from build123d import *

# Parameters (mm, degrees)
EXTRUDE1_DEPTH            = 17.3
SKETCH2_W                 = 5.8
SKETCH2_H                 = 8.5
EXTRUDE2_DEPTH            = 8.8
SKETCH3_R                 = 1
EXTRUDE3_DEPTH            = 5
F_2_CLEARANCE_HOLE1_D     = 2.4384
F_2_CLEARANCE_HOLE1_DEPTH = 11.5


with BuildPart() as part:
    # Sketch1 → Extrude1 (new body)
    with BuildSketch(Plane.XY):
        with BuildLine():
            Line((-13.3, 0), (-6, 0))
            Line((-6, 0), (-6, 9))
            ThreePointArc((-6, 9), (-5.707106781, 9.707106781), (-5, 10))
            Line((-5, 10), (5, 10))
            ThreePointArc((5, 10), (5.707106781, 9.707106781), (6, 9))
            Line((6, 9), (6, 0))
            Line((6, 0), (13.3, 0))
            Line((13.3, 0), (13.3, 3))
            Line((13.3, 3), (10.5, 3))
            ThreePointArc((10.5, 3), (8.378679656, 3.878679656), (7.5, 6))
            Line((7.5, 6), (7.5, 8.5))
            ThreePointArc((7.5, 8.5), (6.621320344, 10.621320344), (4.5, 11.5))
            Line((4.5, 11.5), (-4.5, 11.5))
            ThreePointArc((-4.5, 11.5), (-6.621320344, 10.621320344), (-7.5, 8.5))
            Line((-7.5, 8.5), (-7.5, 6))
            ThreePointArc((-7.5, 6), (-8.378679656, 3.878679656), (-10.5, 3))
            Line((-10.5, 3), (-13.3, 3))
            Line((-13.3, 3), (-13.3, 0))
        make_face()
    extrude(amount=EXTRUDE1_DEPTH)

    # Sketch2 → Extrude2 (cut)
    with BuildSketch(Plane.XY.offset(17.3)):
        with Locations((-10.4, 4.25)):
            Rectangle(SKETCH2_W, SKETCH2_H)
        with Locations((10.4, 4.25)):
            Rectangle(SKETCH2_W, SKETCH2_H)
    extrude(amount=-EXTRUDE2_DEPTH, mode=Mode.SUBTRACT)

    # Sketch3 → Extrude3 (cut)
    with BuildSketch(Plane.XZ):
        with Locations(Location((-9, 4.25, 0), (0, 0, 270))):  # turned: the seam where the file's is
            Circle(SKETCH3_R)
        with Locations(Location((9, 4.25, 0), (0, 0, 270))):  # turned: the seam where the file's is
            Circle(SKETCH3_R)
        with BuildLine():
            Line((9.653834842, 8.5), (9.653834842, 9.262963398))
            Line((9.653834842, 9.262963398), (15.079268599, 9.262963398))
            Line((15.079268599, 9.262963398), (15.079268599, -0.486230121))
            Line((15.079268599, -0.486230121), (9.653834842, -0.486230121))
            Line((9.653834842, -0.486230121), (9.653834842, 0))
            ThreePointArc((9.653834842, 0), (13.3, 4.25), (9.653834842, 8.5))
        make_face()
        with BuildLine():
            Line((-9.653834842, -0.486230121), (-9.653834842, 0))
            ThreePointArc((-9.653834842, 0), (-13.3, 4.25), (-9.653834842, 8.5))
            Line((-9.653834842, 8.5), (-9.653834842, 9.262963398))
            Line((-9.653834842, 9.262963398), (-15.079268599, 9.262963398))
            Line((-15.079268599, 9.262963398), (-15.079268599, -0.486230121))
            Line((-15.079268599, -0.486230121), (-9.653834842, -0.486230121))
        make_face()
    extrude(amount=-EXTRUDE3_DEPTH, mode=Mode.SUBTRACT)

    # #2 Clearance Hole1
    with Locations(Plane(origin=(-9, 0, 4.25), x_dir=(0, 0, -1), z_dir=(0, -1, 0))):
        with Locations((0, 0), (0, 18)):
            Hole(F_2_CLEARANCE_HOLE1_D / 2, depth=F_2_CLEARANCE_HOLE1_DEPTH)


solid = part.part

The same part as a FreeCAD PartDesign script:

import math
import FreeCAD as App
import Part
import Sketcher
from FreeCAD import Vector
Q = App.Units.Quantity


def add_polygon(sketch, points):
    """Adds a closed chain of lines whose ends are joined by coincident constraints."""
    first, n = sketch.GeometryCount, len(points)
    for a, b in zip(points, points[1:] + points[:1]):
        sketch.addGeometry(Part.LineSegment(App.Vector(*a, 0), App.Vector(*b, 0)), False)
    for i in range(n):
        sketch.addConstraint(Sketcher.Constraint("Coincident", first + i, 2, first + (i + 1) % n, 1))

doc = App.newDocument("Part")
body = doc.addObject("PartDesign::Body", "Body")

# Sketch on XY plane
sketch1 = body.newObject("Sketcher::SketchObject", "Sketch")
sketch1.AttachmentSupport = (doc.getObject("XY_Plane"), [""])
sketch1.MapMode = "FlatFace"
sketch1.addGeometry([
    Part.LineSegment(Vector(-13.3, 0, 0), Vector(-6, 0, 0)),  # 0
    Part.LineSegment(Vector(-6, 0, 0), Vector(-6, 9, 0)),  # 1
    Part.ArcOfCircle(Part.Circle(Vector(-5, 9, 0), Vector(0, 0, 1), 1), math.radians(90), math.radians(180)),  # 2
    Part.LineSegment(Vector(-5, 10, 0), Vector(5, 10, 0)),  # 3
    Part.ArcOfCircle(Part.Circle(Vector(5, 9, 0), Vector(0, 0, 1), 1), math.radians(0), math.radians(90)),  # 4
    Part.LineSegment(Vector(6, 9, 0), Vector(6, 0, 0)),  # 5
    Part.LineSegment(Vector(6, 0, 0), Vector(13.3, 0, 0)),  # 6
    Part.LineSegment(Vector(13.3, 0, 0), Vector(13.3, 3, 0)),  # 7
    Part.LineSegment(Vector(13.3, 3, 0), Vector(10.5, 3, 0)),  # 8
    Part.ArcOfCircle(Part.Circle(Vector(10.5, 6, 0), Vector(0, 0, 1), 3), math.radians(180), math.radians(270)),  # 9
    Part.LineSegment(Vector(7.5, 6, 0), Vector(7.5, 8.5, 0)),  # 10
    Part.ArcOfCircle(Part.Circle(Vector(4.5, 8.5, 0), Vector(0, 0, 1), 3), math.radians(0), math.radians(90)),  # 11
    Part.LineSegment(Vector(4.5, 11.5, 0), Vector(-4.5, 11.5, 0)),  # 12
    Part.ArcOfCircle(Part.Circle(Vector(-4.5, 8.5, 0), Vector(0, 0, 1), 3), math.radians(90), math.radians(180)),  # 13
    Part.LineSegment(Vector(-7.5, 8.5, 0), Vector(-7.5, 6, 0)),  # 14
    Part.ArcOfCircle(Part.Circle(Vector(-10.5, 6, 0), Vector(0, 0, 1), 3), math.radians(-90), math.radians(0)),  # 15
    Part.LineSegment(Vector(-10.5, 3, 0), Vector(-13.3, 3, 0)),  # 16
    Part.LineSegment(Vector(-13.3, 3, 0), Vector(-13.3, 0, 0)),  # 17
], False)
sketch1.addConstraint([
    Sketcher.Constraint("Coincident", 0, 2, 1, 1),
    Sketcher.Constraint("Tangent", 1, 2, 2, 2),
    Sketcher.Constraint("Tangent", 2, 1, 3, 1),
    Sketcher.Constraint("Tangent", 3, 2, 4, 2),
    Sketcher.Constraint("Tangent", 4, 1, 5, 1),
    Sketcher.Constraint("Coincident", 5, 2, 6, 1),
    Sketcher.Constraint("Coincident", 6, 2, 7, 1),
    Sketcher.Constraint("Coincident", 7, 2, 8, 1),
    Sketcher.Constraint("Tangent", 8, 2, 9, 2),
    Sketcher.Constraint("Tangent", 9, 1, 10, 1),
    Sketcher.Constraint("Tangent", 10, 2, 11, 1),
    Sketcher.Constraint("Tangent", 11, 2, 12, 1),
    Sketcher.Constraint("Tangent", 12, 2, 13, 1),
    Sketcher.Constraint("Tangent", 13, 2, 14, 1),
    Sketcher.Constraint("Tangent", 14, 2, 15, 2),
    Sketcher.Constraint("Tangent", 15, 1, 16, 1),
    Sketcher.Constraint("Coincident", 16, 2, 17, 1),
    Sketcher.Constraint("Coincident", 17, 2, 0, 1),
    Sketcher.Constraint("Horizontal", 0),
    Sketcher.Constraint("Vertical", 1),
    Sketcher.Constraint("Horizontal", 3),
    Sketcher.Constraint("Vertical", 5),
    Sketcher.Constraint("Horizontal", 6),
    Sketcher.Constraint("Vertical", 7),
    Sketcher.Constraint("Horizontal", 8),
    Sketcher.Constraint("Vertical", 10),
    Sketcher.Constraint("Horizontal", 12),
    Sketcher.Constraint("Vertical", 14),
    Sketcher.Constraint("Horizontal", 16),
    Sketcher.Constraint("Vertical", 17),
    Sketcher.Constraint("Equal", 2, 4),
    Sketcher.Constraint("Equal", 9, 11),
    Sketcher.Constraint("Equal", 11, 13),
    Sketcher.Constraint("Equal", 13, 15),
    Sketcher.Constraint("Symmetric", 0, 2, 5, 2, -1, 1),
    Sketcher.Constraint("Symmetric", 9, 3, 15, 3, -2),
    Sketcher.Constraint("Symmetric", 6, 2, 17, 2, -2),
    Sketcher.Constraint("Equal", 12, 1),
    Sketcher.Constraint("Radius", 2, Q("1 mm")),
    Sketcher.Constraint("Radius", 9, Q("3 mm")),
    Sketcher.Constraint("DistanceX", 3, 1, 3, 2, Q("10 mm")),
    Sketcher.Constraint("DistanceX", 12, 2, 12, 1, Q("9 mm")),
    Sketcher.Constraint("DistanceY", 7, 1, 7, 2, Q("3 mm")),
    Sketcher.Constraint("DistanceX", 0, 1, 0, 2, Q("7.3 mm")),
    Sketcher.Constraint("DistanceY", 10, 1, 10, 2, Q("2.5 mm")),
])
pad1 = body.newObject("PartDesign::Pad", "Pad")
pad1.Profile = sketch1
pad1.Length = 17.3

# Sketch on XY plane
sketch2 = body.newObject("Sketcher::SketchObject", "Sketch001")
sketch2.AttachmentSupport = (doc.getObject("XY_Plane"), [""])
sketch2.MapMode = "FlatFace"
sketch2.AttachmentOffset = App.Placement(Vector(0, 0, 17.3), App.Rotation())
add_polygon(sketch2, [(-13, 8), (-13, 0), (-8, 0), (-8, 8)])  # lines 0-3
add_polygon(sketch2, [(8, 8), (8, 0), (13, 0), (13, 8)])  # lines 4-7
sketch2.addConstraint([
    Sketcher.Constraint("Vertical", 0),
    Sketcher.Constraint("Horizontal", 1),
    Sketcher.Constraint("Vertical", 2),
    Sketcher.Constraint("Horizontal", 3),
    Sketcher.Constraint("Vertical", 4),
    Sketcher.Constraint("Horizontal", 5),
    Sketcher.Constraint("Vertical", 6),
    Sketcher.Constraint("Horizontal", 7),
    Sketcher.Constraint("Symmetric", 1, 2, 4, 2, -1, 1),
    Sketcher.Constraint("Symmetric", 0, 2, 5, 2, -2),
    Sketcher.Constraint("Horizontal", 3, 2, 6, 2),
    Sketcher.Constraint("DistanceX", 1, 1, 1, 2, Q("5.8 mm")),
    Sketcher.Constraint("DistanceY", 0, 2, 0, 1, Q("8.5 mm")),
    Sketcher.Constraint("DistanceX", 1, 2, 4, 2, Q("15 mm")),
])
pocket1 = body.newObject("PartDesign::Pocket", "Pocket")
pocket1.Profile = sketch2
pocket1.Length = 8.8

# Sketch on XZ plane
sketch3 = body.newObject("Sketcher::SketchObject", "Sketch002")
sketch3.AttachmentSupport = (doc.getObject("XZ_Plane"), [""])
sketch3.MapMode = "FlatFace"
sketch3.addGeometry([
    Part.Circle(Vector(-9, 4.25, 0), Vector(0, 0, 1), 1),  # 0
    Part.Circle(Vector(9, 4.25, 0), Vector(0, 0, 1), 1),  # 1
    Part.LineSegment(Vector(9.65, 9.26, 0), Vector(9.65, 8.5, 0)),  # 2
    Part.ArcOfCircle(Part.Circle(Vector(9, 4.25, 0), Vector(0, 0, 1), 4.3), math.radians(-81), math.radians(81)),  # 3
    Part.LineSegment(Vector(9.65, 0, 0), Vector(9.65, -0.49, 0)),  # 4
    Part.LineSegment(Vector(9.65, -0.49, 0), Vector(15.08, -0.49, 0)),  # 5
    Part.LineSegment(Vector(15.08, -0.49, 0), Vector(15.08, 9.26, 0)),  # 6
    Part.LineSegment(Vector(15.08, 9.26, 0), Vector(9.65, 9.26, 0)),  # 7
    Part.LineSegment(Vector(-9.65, -0.49, 0), Vector(-9.65, 0, 0)),  # 8
    Part.ArcOfCircle(Part.Circle(Vector(-9, 4.25, 0), Vector(0, 0, 1), 4.3), math.radians(99), math.radians(261)),  # 9
    Part.LineSegment(Vector(-9.65, 8.5, 0), Vector(-9.65, 9.26, 0)),  # 10
    Part.LineSegment(Vector(-9.65, 9.26, 0), Vector(-15.08, 9.26, 0)),  # 11
    Part.LineSegment(Vector(-15.08, 9.26, 0), Vector(-15.08, -0.49, 0)),  # 12
    Part.LineSegment(Vector(-15.08, -0.49, 0), Vector(-9.65, -0.49, 0)),  # 13
], False)
sketch3.addConstraint([
    Sketcher.Constraint("Coincident", 2, 2, 3, 2),
    Sketcher.Constraint("Coincident", 3, 1, 4, 1),
    Sketcher.Constraint("Coincident", 4, 2, 5, 1),
    Sketcher.Constraint("Coincident", 5, 2, 6, 1),
    Sketcher.Constraint("Coincident", 6, 2, 7, 1),
    Sketcher.Constraint("Coincident", 7, 2, 2, 1),
    Sketcher.Constraint("Coincident", 8, 2, 9, 2),
    Sketcher.Constraint("Coincident", 9, 1, 10, 1),
    Sketcher.Constraint("Coincident", 10, 2, 11, 1),
    Sketcher.Constraint("Coincident", 11, 2, 12, 1),
    Sketcher.Constraint("Coincident", 12, 2, 13, 1),
    Sketcher.Constraint("Coincident", 13, 2, 8, 1),
    Sketcher.Constraint("Vertical", 2),
    Sketcher.Constraint("Vertical", 4),
    Sketcher.Constraint("Horizontal", 5),
    Sketcher.Constraint("Vertical", 6),
    Sketcher.Constraint("Horizontal", 7),
    Sketcher.Constraint("Vertical", 8),
    Sketcher.Constraint("Vertical", 10),
    Sketcher.Constraint("Horizontal", 11),
    Sketcher.Constraint("Vertical", 12),
    Sketcher.Constraint("Horizontal", 13),
    Sketcher.Constraint("Coincident", 3, 3, 1, 3),
    Sketcher.Constraint("Coincident", 9, 3, 0, 3),
    Sketcher.Constraint("Equal", 0, 1),
    Sketcher.Constraint("Equal", 3, 9),
    Sketcher.Constraint("Symmetric", 3, 1, 8, 2, -1, 1),
    Sketcher.Constraint("Symmetric", 0, 3, 1, 3, -2),
    Sketcher.Constraint("Symmetric", 7, 2, 10, 2, -2),
    Sketcher.Constraint("Symmetric", 5, 2, 12, 2, -2),
    Sketcher.Constraint("Vertical", 2, 2, 3, 1),
    Sketcher.Constraint("Diameter", 0, Q("2 mm")),
    Sketcher.Constraint("Radius", 3, Q("4.3 mm")),
    Sketcher.Constraint("DistanceX", 0, 3, -1, 1, Q("9 mm")),
    Sketcher.Constraint("DistanceY", -1, 1, 2, 2, Q("8.5 mm")),
    Sketcher.Constraint("DistanceY", 4, 2, 4, 1, Q("0.48623 mm")),
    Sketcher.Constraint("DistanceX", 5, 1, 5, 2, Q("5.425434 mm")),
    Sketcher.Constraint("DistanceY", 2, 2, 2, 1, Q("0.762963 mm")),
])
pocket2 = body.newObject("PartDesign::Pocket", "Pocket001")
pocket2.Profile = sketch3
pocket2.Length = 5

# Sketch on XZ plane
sketch4 = body.newObject("Sketcher::SketchObject", "Sketch003")
sketch4.AttachmentSupport = (doc.getObject("XZ_Plane"), [""])
sketch4.MapMode = "FlatFace"
sketch4.addGeometry([
    Part.Circle(Vector(-9, 4.2, 0), Vector(0, 0, 1), 1.2),
    Part.Circle(Vector(9, 4.2, 0), Vector(0, 0, 1), 1.2),
], False)
sketch4.addConstraint([
    Sketcher.Constraint("Equal", 0, 1),
    Sketcher.Constraint("Symmetric", 0, 3, 1, 3, -2),
    Sketcher.Constraint("DistanceX", 0, 3, -1, 1, Q("9 mm")),
    Sketcher.Constraint("Diameter", 0, Q("2.4384 mm")),
    Sketcher.Constraint("DistanceY", -1, 1, 0, 3, Q("4.25 mm")),
])
doc.recompute()
hole = body.newObject("PartDesign::Hole", "Hole")
hole.Profile = sketch4
hole.ThreadType = "None"
hole.Diameter = 2.4384
hole.DepthType = "Dimension"
hole.Depth = 11.5
hole.DrillPoint = "Flat"

doc.recompute()
